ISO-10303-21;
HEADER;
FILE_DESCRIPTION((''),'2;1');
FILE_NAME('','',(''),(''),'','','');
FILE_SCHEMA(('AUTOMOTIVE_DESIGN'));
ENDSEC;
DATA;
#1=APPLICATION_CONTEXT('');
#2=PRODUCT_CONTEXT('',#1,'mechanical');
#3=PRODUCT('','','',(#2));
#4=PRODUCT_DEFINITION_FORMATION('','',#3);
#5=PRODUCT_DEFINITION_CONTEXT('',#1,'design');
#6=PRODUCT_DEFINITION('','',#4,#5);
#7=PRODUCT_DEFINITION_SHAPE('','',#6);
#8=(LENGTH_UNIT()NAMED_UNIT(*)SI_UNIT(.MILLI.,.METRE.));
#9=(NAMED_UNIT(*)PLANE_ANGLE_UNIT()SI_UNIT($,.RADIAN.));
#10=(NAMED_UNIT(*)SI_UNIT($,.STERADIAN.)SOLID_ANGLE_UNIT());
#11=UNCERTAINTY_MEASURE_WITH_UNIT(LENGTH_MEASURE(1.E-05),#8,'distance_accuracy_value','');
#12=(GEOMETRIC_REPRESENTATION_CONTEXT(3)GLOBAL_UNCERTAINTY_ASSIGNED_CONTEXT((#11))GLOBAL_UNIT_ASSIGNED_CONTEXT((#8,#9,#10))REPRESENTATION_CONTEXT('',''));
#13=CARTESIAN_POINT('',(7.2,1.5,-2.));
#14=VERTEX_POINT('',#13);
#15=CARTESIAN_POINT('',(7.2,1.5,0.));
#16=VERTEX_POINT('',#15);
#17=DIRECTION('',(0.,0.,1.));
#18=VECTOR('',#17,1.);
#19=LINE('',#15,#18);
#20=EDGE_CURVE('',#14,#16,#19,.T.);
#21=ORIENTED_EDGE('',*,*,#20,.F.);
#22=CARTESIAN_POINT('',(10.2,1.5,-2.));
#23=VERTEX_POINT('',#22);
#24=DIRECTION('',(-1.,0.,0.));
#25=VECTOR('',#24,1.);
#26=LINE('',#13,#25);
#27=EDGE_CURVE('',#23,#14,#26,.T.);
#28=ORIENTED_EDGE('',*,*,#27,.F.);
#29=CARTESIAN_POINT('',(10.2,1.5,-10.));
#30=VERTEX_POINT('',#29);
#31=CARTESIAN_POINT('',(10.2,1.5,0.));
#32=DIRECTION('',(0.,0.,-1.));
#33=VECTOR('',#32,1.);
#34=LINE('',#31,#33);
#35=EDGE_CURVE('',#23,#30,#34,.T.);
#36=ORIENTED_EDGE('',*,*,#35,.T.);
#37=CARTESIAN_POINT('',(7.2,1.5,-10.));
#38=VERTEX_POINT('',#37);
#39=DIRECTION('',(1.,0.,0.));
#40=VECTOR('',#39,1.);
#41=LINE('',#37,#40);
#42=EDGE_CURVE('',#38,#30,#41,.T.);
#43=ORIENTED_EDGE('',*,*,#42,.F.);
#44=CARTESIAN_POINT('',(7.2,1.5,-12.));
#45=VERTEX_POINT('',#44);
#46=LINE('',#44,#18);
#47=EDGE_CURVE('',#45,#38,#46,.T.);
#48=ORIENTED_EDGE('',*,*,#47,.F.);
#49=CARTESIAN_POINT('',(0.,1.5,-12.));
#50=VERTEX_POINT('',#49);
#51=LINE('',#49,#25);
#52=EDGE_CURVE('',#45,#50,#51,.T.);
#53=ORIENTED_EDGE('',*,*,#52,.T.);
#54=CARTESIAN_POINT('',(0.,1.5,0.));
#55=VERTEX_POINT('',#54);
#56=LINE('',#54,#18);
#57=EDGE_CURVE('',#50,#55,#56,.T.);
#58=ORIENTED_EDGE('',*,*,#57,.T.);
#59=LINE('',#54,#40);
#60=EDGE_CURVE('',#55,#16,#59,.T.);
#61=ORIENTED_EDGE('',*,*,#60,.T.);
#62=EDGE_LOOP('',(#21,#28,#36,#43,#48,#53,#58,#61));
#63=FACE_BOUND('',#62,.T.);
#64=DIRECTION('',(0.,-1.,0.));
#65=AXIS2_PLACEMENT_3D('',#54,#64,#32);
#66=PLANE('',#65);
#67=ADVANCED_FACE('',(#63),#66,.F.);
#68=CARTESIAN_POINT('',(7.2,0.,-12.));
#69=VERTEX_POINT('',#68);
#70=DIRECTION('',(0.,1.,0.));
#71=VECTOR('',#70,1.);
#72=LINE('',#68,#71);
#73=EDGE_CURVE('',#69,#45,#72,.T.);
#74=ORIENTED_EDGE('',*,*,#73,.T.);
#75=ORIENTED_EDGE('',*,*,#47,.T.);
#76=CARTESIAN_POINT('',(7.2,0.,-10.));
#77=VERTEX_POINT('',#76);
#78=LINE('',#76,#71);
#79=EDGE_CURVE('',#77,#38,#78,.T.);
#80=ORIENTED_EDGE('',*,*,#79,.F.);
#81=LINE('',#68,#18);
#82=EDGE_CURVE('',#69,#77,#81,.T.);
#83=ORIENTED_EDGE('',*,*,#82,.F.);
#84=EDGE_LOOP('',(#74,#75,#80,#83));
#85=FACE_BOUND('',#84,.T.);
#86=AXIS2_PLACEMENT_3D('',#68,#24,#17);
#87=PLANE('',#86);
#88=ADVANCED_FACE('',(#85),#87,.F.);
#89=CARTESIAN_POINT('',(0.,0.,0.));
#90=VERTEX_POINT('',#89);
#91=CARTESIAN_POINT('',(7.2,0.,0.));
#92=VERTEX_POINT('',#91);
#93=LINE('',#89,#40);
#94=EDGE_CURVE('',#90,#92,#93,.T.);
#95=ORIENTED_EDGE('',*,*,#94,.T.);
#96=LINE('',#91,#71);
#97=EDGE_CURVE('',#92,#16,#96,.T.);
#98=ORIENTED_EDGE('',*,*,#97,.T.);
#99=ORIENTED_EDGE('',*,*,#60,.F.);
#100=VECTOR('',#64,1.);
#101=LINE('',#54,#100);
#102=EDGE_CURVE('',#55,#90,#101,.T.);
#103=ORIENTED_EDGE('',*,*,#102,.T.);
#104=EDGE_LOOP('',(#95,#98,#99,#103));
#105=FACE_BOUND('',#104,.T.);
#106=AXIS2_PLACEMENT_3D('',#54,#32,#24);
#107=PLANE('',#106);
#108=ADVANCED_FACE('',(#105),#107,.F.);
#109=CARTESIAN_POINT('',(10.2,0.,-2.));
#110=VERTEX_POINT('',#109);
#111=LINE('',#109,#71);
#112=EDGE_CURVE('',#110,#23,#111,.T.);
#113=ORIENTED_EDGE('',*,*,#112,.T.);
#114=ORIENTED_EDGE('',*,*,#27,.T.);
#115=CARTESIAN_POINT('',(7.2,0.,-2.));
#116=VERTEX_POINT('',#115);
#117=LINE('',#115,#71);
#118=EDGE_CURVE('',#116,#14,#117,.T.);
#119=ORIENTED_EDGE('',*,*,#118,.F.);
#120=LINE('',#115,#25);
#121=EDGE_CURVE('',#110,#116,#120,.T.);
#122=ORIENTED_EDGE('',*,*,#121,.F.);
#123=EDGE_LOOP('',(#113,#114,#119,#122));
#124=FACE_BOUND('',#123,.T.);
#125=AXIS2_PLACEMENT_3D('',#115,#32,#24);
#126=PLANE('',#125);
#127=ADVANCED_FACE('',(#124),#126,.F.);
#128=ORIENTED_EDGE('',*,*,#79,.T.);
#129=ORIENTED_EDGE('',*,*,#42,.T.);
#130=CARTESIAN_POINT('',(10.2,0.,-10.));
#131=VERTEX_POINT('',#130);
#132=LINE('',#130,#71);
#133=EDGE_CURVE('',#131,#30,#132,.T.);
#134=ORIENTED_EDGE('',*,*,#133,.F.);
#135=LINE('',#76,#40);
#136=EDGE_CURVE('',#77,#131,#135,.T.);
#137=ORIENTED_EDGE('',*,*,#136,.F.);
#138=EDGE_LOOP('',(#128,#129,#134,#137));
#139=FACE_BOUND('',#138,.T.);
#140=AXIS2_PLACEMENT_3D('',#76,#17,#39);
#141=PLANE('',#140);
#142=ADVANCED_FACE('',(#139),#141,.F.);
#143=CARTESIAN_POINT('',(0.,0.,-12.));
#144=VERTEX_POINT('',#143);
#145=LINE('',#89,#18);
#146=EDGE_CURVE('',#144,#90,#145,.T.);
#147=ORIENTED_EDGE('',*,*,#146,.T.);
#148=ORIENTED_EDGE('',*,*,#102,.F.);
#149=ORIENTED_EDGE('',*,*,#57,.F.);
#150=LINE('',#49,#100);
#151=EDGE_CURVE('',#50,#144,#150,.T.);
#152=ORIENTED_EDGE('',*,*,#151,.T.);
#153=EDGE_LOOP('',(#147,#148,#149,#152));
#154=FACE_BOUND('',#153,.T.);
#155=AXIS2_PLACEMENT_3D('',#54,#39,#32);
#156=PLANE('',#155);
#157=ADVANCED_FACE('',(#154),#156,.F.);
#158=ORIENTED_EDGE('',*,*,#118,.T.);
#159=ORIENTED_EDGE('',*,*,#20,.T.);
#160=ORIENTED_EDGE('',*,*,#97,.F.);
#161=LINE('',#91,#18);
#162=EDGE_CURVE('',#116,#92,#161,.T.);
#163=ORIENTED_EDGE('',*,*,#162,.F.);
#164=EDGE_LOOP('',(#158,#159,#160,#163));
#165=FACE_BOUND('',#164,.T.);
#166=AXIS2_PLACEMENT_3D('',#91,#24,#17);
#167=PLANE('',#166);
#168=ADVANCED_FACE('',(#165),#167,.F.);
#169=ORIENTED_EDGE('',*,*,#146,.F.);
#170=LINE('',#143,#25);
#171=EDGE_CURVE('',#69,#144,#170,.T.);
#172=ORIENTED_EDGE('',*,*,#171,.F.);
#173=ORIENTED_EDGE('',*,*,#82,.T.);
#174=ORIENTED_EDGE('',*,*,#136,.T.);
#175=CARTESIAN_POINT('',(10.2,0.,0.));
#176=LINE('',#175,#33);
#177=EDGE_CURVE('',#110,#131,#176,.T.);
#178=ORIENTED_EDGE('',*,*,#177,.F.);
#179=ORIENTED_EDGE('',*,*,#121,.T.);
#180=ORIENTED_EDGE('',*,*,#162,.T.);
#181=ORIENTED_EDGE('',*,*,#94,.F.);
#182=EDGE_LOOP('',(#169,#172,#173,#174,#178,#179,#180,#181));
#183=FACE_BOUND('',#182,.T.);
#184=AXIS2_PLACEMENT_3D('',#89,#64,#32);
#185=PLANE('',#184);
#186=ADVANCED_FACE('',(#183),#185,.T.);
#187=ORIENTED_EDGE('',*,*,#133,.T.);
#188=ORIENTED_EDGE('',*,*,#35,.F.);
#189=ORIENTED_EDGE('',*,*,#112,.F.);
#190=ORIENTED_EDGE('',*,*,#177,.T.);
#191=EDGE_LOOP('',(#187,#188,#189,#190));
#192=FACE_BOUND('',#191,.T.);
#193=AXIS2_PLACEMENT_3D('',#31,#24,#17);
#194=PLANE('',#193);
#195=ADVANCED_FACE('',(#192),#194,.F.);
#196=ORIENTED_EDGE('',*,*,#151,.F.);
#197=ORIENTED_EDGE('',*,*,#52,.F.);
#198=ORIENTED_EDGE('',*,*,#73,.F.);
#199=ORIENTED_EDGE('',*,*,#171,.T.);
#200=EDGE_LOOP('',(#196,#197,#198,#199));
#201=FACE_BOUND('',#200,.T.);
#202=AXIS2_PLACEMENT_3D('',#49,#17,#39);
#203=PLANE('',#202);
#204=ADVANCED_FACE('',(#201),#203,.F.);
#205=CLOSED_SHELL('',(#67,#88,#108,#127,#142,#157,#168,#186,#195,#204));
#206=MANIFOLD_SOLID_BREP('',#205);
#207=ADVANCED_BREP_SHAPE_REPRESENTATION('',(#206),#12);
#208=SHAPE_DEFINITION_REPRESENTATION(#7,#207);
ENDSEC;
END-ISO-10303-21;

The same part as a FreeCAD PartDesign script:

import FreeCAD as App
import Part
import Sketcher
from FreeCAD import Vector
Q = App.Units.Quantity


def add_polygon(sketch, points):
    """Adds a closed chain of lines whose ends are joined by coincident constraints."""
    first, n = sketch.GeometryCount, len(points)
    for a, b in zip(points, points[1:] + points[:1]):
        sketch.addGeometry(Part.LineSegment(App.Vector(*a, 0), App.Vector(*b, 0)), False)
    for i in range(n):
        sketch.addConstraint(Sketcher.Constraint("Coincident", first + i, 2, first + (i + 1) % n, 1))

doc = App.newDocument("Part")
body = doc.addObject("PartDesign::Body", "Body")

# Sketch on XZ plane
sketch1 = body.newObject("Sketcher::SketchObject", "Sketch")
sketch1.AttachmentSupport = (doc.getObject("XZ_Plane"), [""])
sketch1.MapMode = "FlatFace"
add_polygon(sketch1, [(0, -12), (0, 0), (10.2, 0), (10.2, -12)])  # lines 0-3
sketch1.addConstraint([
    Sketcher.Constraint("Vertical", 0),
    Sketcher.Constraint("Horizontal", 1),
    Sketcher.Constraint("Vertical", 2),
    Sketcher.Constraint("Horizontal", 3),
    Sketcher.Constraint("Coincident", 0, 2, -1, 1),
    Sketcher.Constraint("DistanceY", 0, 1, 0, 2, Q("12 mm")),
    Sketcher.Constraint("DistanceX", 1, 1, 1, 2, Q("10.2 mm")),
])
pad1 = body.newObject("PartDesign::Pad", "Pad")
pad1.Profile = sketch1
pad1.Length = 1.5
pad1.Reversed = True

# Sketch on XZ plane
sketch2 = body.newObject("Sketcher::SketchObject", "Sketch001")
sketch2.AttachmentSupport = (doc.getObject("XZ_Plane"), [""])
sketch2.MapMode = "FlatFace"
sketch2.AttachmentOffset = App.Placement(Vector(0, 0, -1.5), App.Rotation())
add_polygon(sketch2, [(7.2, -12), (7.2, -10), (10.2, -10), (10.2, -12)])  # lines 0-3
add_polygon(sketch2, [(7.2, -2), (7.2, 0), (10.2, 0), (10.2, -2)])  # lines 4-7
sketch2.addConstraint([
    Sketcher.Constraint("Vertical", 0),
    Sketcher.Constraint("Horizontal", 1),
    Sketcher.Constraint("Vertical", 2),
    Sketcher.Constraint("Horizontal", 3),
    Sketcher.Constraint("Vertical", 4),
    Sketcher.Constraint("Horizontal", 5),
    Sketcher.Constraint("Vertical", 6),
    Sketcher.Constraint("Horizontal", 7),
    Sketcher.Constraint("PointOnObject", 4, 2, -1),
    Sketcher.Constraint("Vertical", 3, 2, 4, 2),
    Sketcher.Constraint("Vertical", 2, 2, 5, 2),
    Sketcher.Constraint("Equal", 2, 4),
    Sketcher.Constraint("DistanceX", 1, 1, 1, 2, Q("3 mm")),
    Sketcher.Constraint("DistanceY", 0, 1, 0, 2, Q("2 mm")),
    Sketcher.Constraint("DistanceY", 0, 2, -1, 1, Q("10 mm")),
    Sketcher.Constraint("DistanceX", -1, 1, 0, 2, Q("7.2 mm")),
])
pocket1 = body.newObject("PartDesign::Pocket", "Pocket")
pocket1.Profile = sketch2
pocket1.Type = "ThroughAll"
pocket1.Reversed = True

doc.recompute()
